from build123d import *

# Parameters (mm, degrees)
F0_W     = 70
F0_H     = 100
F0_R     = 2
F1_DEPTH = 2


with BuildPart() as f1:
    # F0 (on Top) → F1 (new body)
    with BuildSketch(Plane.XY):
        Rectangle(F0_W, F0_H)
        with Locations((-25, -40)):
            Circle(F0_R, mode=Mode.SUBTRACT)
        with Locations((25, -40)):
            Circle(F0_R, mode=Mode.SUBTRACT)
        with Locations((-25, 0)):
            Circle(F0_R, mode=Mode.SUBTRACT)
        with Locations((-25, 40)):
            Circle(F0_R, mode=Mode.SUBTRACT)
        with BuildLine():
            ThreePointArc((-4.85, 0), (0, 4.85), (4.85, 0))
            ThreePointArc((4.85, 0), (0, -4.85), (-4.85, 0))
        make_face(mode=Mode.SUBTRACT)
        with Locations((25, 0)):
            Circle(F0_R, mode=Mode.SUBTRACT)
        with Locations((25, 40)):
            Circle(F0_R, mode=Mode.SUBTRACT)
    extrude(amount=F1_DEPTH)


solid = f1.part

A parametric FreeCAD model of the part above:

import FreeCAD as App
import Part
import Sketcher

V = App.Vector


def add_polygon(sketch, points):
    """Adds a closed chain of lines whose ends are joined by coincident constraints."""
    first, n = sketch.GeometryCount, len(points)
    for a, b in zip(points, points[1:] + points[:1]):
        sketch.addGeometry(Part.LineSegment(App.Vector(*a, 0), App.Vector(*b, 0)), False)
    for i in range(n):
        sketch.addConstraint(Sketcher.Constraint("Coincident", first + i, 2, first + (i + 1) % n, 1))

doc = App.newDocument("Part")
body = doc.addObject("PartDesign::Body", "Body")

# Sketch on XY plane
sketch1 = body.newObject("Sketcher::SketchObject", "Sketch")
sketch1.AttachmentSupport = (doc.getObject("XY_Plane"), [""])
sketch1.MapMode = "FlatFace"
add_polygon(sketch1, [(-35, 50), (-35, -50), (35, -50), (35, 50)])  # lines 0-3
sketch1.addGeometry(Part.Circle(V(-25, -40, 0), V(0, 0, 1), 2), False)  # 4
sketch1.addGeometry(Part.Circle(V(25, -40, 0), V(0, 0, 1), 2), False)  # 5
sketch1.addGeometry(Part.Circle(V(-25, 0, 0), V(0, 0, 1), 2), False)  # 6
sketch1.addGeometry(Part.Circle(V(-25, 40, 0), V(0, 0, 1), 2), False)  # 7
sketch1.addGeometry(Part.Circle(V(0, 0, 0), V(0, 0, 1), 4.85), False)  # 8
sketch1.addGeometry(Part.Circle(V(25, 0, 0), V(0, 0, 1), 2), False)  # 9
sketch1.addGeometry(Part.Circle(V(25, 40, 0), V(0, 0, 1), 2), False)  # 10
sketch1.addConstraint([
    Sketcher.Constraint("Vertical", 0),
    Sketcher.Constraint("Horizontal", 1),
    Sketcher.Constraint("Vertical", 2),
    Sketcher.Constraint("Horizontal", 3),
    Sketcher.Constraint("Coincident", 8, 3, -1, 1),
    Sketcher.Constraint("Equal", 4, 5),
    Sketcher.Constraint("Equal", 5, 6),
    Sketcher.Constraint("Equal", 6, 7),
    Sketcher.Constraint("Equal", 7, 9),
    Sketcher.Constraint("Equal", 9, 10),
    Sketcher.Constraint("Symmetric", 5, 3, 7, 3, -1, 1),
    Sketcher.Constraint("Symmetric", 6, 3, 9, 3, -1, 1),
    Sketcher.Constraint("Symmetric", 4, 3, 10, 3, -1, 1),
    Sketcher.Constraint("Symmetric", 0, 2, 2, 2, -1, 1),
    Sketcher.Constraint("Symmetric", 4, 3, 5, 3, -2),
    Sketcher.Constraint("PointOnObject", 6, 3, -1),
    Sketcher.Constraint("Vertical", 4, 3, 6, 3),
    Sketcher.Constraint("Diameter", 4, 4.0),
    Sketcher.Constraint("Diameter", 8, 9.7),
    Sketcher.Constraint("DistanceX", 1, 1, 1, 2, 70.0),
    Sketcher.Constraint("DistanceY", 0, 2, 0, 1, 100.0),
    Sketcher.Constraint("DistanceX", 4, 3, -1, 1, 25.0),
    Sketcher.Constraint("DistanceY", 4, 3, -1, 1, 40.0),
])
pad1 = body.newObject("PartDesign::Pad", "Pad")
pad1.Profile = sketch1
pad1.Length = 2

doc.recompute()
